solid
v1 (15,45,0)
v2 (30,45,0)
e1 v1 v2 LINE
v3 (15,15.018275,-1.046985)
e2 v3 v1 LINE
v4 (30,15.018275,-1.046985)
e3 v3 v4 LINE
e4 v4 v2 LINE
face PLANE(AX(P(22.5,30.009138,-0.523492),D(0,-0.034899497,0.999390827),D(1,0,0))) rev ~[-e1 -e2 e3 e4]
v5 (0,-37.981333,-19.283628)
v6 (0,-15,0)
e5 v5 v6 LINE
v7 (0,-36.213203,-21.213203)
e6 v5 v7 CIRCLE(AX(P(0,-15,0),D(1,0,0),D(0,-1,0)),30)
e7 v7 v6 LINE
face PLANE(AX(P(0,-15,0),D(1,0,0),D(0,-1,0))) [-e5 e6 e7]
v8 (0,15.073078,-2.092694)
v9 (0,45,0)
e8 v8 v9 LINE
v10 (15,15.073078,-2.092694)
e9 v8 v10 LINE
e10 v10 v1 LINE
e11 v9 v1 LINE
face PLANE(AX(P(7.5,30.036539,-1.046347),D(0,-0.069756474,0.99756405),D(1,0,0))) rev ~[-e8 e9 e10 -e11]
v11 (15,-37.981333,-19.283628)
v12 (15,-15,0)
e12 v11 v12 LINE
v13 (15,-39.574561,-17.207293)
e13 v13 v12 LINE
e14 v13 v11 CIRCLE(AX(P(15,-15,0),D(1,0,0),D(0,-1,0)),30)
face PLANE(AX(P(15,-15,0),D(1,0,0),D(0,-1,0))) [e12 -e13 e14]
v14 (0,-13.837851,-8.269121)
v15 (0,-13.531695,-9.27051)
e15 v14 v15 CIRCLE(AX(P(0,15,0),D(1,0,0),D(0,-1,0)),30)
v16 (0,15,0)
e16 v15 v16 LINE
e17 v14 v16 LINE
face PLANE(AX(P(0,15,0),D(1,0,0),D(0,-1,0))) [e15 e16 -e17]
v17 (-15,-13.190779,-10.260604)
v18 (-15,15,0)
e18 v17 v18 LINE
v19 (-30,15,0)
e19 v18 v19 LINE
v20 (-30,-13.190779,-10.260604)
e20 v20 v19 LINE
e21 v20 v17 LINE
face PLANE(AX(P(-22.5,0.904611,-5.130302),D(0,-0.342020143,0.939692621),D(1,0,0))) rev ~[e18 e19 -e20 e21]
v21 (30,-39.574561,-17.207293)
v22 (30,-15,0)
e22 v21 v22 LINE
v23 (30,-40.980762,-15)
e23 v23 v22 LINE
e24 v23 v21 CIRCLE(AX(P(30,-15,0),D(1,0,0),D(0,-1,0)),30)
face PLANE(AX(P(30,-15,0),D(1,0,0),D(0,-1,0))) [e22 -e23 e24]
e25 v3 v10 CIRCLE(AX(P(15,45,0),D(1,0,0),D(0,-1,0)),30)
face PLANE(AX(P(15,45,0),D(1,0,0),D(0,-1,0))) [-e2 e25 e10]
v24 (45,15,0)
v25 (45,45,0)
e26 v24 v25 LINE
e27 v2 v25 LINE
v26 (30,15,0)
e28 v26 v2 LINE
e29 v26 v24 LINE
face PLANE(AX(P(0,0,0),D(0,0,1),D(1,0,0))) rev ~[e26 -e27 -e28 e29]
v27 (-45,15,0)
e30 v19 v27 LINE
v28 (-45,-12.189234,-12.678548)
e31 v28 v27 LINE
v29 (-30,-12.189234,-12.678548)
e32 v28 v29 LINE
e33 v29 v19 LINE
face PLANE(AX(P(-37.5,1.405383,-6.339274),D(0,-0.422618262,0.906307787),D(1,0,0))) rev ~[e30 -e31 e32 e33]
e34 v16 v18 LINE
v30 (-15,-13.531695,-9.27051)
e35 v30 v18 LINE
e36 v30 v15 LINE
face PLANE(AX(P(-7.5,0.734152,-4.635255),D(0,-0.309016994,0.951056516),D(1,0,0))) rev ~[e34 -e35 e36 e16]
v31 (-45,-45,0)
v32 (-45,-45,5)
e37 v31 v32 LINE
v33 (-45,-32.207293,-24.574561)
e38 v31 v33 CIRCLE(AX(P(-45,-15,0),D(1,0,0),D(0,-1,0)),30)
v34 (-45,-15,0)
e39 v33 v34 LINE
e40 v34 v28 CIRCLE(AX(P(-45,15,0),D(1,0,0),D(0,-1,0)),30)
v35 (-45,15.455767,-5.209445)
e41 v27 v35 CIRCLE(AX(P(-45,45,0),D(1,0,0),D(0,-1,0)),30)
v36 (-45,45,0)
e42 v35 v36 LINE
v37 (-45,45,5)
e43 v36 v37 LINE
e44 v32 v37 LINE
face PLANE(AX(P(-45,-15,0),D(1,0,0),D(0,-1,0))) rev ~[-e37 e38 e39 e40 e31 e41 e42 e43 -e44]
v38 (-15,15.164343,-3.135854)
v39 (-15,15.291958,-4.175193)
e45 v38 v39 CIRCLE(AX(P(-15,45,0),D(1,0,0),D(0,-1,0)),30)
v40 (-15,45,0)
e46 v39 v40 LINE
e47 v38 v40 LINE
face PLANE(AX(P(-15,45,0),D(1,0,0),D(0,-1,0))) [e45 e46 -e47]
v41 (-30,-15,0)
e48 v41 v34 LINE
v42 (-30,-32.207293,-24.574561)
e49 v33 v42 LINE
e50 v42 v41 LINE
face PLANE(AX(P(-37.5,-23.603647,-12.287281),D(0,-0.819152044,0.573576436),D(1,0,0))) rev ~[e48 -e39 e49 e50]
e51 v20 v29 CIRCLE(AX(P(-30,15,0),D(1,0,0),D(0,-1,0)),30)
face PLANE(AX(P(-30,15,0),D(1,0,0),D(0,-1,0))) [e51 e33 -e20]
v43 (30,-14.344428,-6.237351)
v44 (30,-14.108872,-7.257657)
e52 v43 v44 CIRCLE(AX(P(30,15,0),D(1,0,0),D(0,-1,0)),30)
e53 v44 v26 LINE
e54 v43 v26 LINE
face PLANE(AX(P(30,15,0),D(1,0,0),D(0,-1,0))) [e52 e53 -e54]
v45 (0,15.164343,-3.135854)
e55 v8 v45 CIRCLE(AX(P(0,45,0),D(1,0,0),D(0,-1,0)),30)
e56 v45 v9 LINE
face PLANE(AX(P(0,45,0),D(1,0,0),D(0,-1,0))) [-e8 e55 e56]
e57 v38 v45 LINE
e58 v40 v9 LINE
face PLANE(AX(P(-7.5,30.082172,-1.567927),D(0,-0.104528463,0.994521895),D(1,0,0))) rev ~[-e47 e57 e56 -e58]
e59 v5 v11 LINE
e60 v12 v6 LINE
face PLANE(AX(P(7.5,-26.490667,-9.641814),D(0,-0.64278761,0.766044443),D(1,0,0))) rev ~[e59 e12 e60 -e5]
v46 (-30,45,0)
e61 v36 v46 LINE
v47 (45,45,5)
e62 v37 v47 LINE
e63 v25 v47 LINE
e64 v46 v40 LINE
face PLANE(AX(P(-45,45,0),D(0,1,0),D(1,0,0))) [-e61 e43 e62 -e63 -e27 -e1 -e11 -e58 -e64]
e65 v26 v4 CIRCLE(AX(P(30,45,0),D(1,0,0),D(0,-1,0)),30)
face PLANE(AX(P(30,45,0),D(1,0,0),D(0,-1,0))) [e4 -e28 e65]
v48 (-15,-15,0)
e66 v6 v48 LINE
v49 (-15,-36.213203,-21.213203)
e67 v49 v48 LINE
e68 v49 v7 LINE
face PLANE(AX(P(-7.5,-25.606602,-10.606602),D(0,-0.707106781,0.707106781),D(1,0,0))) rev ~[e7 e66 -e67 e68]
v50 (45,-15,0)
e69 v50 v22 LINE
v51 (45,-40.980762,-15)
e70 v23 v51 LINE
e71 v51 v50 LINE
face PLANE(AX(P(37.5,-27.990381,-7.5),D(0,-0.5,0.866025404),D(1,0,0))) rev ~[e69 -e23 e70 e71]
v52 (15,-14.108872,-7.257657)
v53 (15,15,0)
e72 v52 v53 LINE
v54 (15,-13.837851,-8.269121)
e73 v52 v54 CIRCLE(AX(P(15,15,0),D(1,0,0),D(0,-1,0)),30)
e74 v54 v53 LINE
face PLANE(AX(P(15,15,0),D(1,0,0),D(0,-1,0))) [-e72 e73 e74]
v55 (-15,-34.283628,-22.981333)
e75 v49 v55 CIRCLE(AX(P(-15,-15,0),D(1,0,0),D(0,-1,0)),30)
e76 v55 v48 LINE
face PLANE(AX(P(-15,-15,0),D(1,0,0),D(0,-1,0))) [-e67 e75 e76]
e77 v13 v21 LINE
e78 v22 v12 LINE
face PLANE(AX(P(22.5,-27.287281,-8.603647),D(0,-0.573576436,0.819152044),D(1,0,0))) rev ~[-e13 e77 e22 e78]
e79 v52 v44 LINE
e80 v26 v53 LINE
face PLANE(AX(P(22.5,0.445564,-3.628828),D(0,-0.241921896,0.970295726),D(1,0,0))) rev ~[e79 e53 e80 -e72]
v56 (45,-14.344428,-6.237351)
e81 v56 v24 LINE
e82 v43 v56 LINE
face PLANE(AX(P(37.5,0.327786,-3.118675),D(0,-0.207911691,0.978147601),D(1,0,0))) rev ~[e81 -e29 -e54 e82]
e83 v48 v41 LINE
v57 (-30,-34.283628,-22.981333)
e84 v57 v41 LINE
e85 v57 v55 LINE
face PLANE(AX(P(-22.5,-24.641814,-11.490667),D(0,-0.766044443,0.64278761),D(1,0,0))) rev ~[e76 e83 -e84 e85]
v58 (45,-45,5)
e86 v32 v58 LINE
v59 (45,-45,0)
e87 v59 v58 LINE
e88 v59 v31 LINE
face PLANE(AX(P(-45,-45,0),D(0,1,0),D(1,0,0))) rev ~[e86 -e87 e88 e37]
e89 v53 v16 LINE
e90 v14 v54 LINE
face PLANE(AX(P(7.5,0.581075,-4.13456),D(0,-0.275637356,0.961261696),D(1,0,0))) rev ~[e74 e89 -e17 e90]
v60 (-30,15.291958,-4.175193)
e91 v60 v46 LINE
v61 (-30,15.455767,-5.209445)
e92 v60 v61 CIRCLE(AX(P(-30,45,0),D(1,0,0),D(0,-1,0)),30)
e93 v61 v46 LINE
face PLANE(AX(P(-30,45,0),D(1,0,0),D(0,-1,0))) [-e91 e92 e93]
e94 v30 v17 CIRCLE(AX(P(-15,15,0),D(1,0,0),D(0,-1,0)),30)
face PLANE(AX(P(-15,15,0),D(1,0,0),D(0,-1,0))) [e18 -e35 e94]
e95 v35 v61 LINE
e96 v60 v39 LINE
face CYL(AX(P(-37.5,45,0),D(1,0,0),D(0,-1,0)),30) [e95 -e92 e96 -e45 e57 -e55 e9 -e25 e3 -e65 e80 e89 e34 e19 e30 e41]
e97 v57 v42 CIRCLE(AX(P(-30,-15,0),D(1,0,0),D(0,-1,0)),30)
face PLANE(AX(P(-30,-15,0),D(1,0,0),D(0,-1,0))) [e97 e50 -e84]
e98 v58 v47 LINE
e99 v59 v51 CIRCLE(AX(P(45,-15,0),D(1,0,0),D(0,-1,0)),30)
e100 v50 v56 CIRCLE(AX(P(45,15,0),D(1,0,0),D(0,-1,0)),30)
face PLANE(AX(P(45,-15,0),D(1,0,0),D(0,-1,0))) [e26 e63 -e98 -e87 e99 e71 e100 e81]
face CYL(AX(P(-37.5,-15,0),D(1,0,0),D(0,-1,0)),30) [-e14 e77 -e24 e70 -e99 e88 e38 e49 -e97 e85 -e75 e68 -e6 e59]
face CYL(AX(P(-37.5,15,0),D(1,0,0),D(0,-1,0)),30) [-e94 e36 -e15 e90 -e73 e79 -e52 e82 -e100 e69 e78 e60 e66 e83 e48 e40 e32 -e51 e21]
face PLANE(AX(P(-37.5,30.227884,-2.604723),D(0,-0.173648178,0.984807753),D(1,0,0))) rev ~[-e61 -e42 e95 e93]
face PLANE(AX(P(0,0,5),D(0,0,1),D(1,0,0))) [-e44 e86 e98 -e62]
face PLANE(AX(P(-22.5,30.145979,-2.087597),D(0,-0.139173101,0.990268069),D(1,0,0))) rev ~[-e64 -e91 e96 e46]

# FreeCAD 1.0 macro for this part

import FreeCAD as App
import Part
import Sketcher
from FreeCAD import Vector
Q = App.Units.Quantity


def add_polygon(sketch, points):
    """Adds a closed chain of lines whose ends are joined by coincident constraints."""
    first, n = sketch.GeometryCount, len(points)
    for a, b in zip(points, points[1:] + points[:1]):
        sketch.addGeometry(Part.LineSegment(App.Vector(*a, 0), App.Vector(*b, 0)), False)
    for i in range(n):
        sketch.addConstraint(Sketcher.Constraint("Coincident", first + i, 2, first + (i + 1) % n, 1))

doc = App.newDocument("Part")
body = doc.addObject("PartDesign::Body", "Body")

# Sketch on XY plane
sketch1 = body.newObject("Sketcher::SketchObject", "Sketch")
sketch1.AttachmentSupport = (doc.getObject("XY_Plane"), [""])
sketch1.MapMode = "FlatFace"
add_polygon(sketch1, [(-45, 45), (-45, -45), (45, -45), (45, 45)])  # lines 0-3
sketch1.addConstraint(Sketcher.Constraint("Vertical", 0))
sketch1.addConstraint(Sketcher.Constraint("Horizontal", 1))
sketch1.addConstraint(Sketcher.Constraint("Vertical", 2))
sketch1.addConstraint(Sketcher.Constraint("Horizontal", 3))
sketch1.addConstraint(Sketcher.Constraint("Symmetric", 0, 2, 2, 2, -1, 1))
sketch1.addConstraint(Sketcher.Constraint("Equal", 3, 0))
sketch1.addConstraint(Sketcher.Constraint("DistanceX", 1, 1, 1, 2, Q("90 mm")))
pad1 = body.newObject("PartDesign::Pad", "Pad")
pad1.Profile = sketch1
pad1.Length = 5

# Sketch on XY plane
sketch2 = body.newObject("Sketcher::SketchObject", "Sketch001")
sketch2.AttachmentSupport = (doc.getObject("XY_Plane"), [""])
sketch2.MapMode = "FlatFace"
add_polygon(sketch2, [(15, 45), (15, 15), (30, 15), (30, 45)])  # lines 0-3
sketch2.addGeometry(Part.LineSegment(Vector(15, 45, 0), Vector(30, 45, 0)), True)  # axis
sketch2.addConstraint(Sketcher.Constraint("Vertical", 0))
sketch2.addConstraint(Sketcher.Constraint("Horizontal", 1))
sketch2.addConstraint(Sketcher.Constraint("Vertical", 2))
sketch2.addConstraint(Sketcher.Constraint("Horizontal", 3))
sketch2.addConstraint(Sketcher.Constraint("Horizontal", 4))
sketch2.addConstraint(Sketcher.Constraint("Coincident", 4, 1, 3, 2))
sketch2.addConstraint(Sketcher.Constraint("Vertical", 1, 2, 4, 2))
sketch2.addConstraint(Sketcher.Constraint("DistanceX", 1, 1, 1, 2, Q("15 mm")))
sketch2.addConstraint(Sketcher.Constraint("DistanceY", 0, 2, 0, 1, Q("30 mm")))
sketch2.addConstraint(Sketcher.Constraint("DistanceX", -1, 1, 0, 2, Q("15 mm")))
sketch2.addConstraint(Sketcher.Constraint("DistanceY", -1, 1, 0, 2, Q("15 mm")))
revolution = body.newObject("PartDesign::Revolution", "Revolution")
revolution.Profile = sketch2
revolution.ReferenceAxis = (sketch2, ["Axis0"])
revolution.Angle = 2

# Sketch on XY plane
sketch3 = body.newObject("Sketcher::SketchObject", "Sketch002")
sketch3.AttachmentSupport = (doc.getObject("XY_Plane"), [""])
sketch3.MapMode = "FlatFace"
add_polygon(sketch3, [(0, 45), (0, 15), (15, 15), (15, 45)])  # lines 0-3
sketch3.addGeometry(Part.LineSegment(Vector(15, 45, 0), Vector(0, 45, 0)), True)  # axis
sketch3.addConstraint(Sketcher.Constraint("Vertical", 0))
sketch3.addConstraint(Sketcher.Constraint("Horizontal", 1))
sketch3.addConstraint(Sketcher.Constraint("Vertical", 2))
sketch3.addConstraint(Sketcher.Constraint("Horizontal", 3))
sketch3.addConstraint(Sketcher.Constraint("Horizontal", 4))
sketch3.addConstraint(Sketcher.Constraint("Coincident", 4, 1, 2, 2))
sketch3.addConstraint(Sketcher.Constraint("PointOnObject", 0, 2, -2))
sketch3.addConstraint(Sketcher.Constraint("PointOnObject", 4, 2, -2))
sketch3.addConstraint(Sketcher.Constraint("DistanceX", 1, 1, 1, 2, Q("15 mm")))
sketch3.addConstraint(Sketcher.Constraint("DistanceY", 0, 2, 0, 1, Q("30 mm")))
sketch3.addConstraint(Sketcher.Constraint("DistanceY", -1, 1, 0, 2, Q("15 mm")))
revolution2 = body.newObject("PartDesign::Revolution", "Revolution001")
revolution2.Profile = sketch3
revolution2.ReferenceAxis = (sketch3, ["Axis0"])
revolution2.Angle = 4
revolution2.Reversed = True

# Sketch on XY plane
sketch4 = body.newObject("Sketcher::SketchObject", "Sketch003")
sketch4.AttachmentSupport = (doc.getObject("XY_Plane"), [""])
sketch4.MapMode = "FlatFace"
add_polygon(sketch4, [(-15, 45), (-15, 15), (0, 15), (0, 45)])  # lines 0-3
sketch4.addGeometry(Part.LineSegment(Vector(0, 45, 0), Vector(-15, 45, 0)), True)  # axis
sketch4.addConstraint(Sketcher.Constraint("Vertical", 0))
sketch4.addConstraint(Sketcher.Constraint("Horizontal", 1))
sketch4.addConstraint(Sketcher.Constraint("Vertical", 2))
sketch4.addConstraint(Sketcher.Constraint("Horizontal", 3))
sketch4.addConstraint(Sketcher.Constraint("Horizontal", 4))
sketch4.addConstraint(Sketcher.Constraint("Coincident", 4, 1, 2, 2))
sketch4.addConstraint(Sketcher.Constraint("PointOnObject", 1, 2, -2))
sketch4.addConstraint(Sketcher.Constraint("Vertical", 0, 2, 4, 2))
sketch4.addConstraint(Sketcher.Constraint("DistanceX", 1, 1, 1, 2, Q("15 mm")))
sketch4.addConstraint(Sketcher.Constraint("DistanceY", 0, 2, 0, 1, Q("30 mm")))
sketch4.addConstraint(Sketcher.Constraint("DistanceY", -1, 1, 0, 2, Q("15 mm")))
revolution3 = body.newObject("PartDesign::Revolution", "Revolution002")
revolution3.Profile = sketch4
revolution3.ReferenceAxis = (sketch4, ["Axis0"])
revolution3.Angle = 6
revolution3.Reversed = True

# Sketch on XY plane
sketch5 = body.newObject("Sketcher::SketchObject", "Sketch004")
sketch5.AttachmentSupport = (doc.getObject("XY_Plane"), [""])
sketch5.MapMode = "FlatFace"
add_polygon(sketch5, [(-30, 45), (-30, 15), (-15, 15), (-15, 45)])  # lines 0-3
sketch5.addGeometry(Part.LineSegment(Vector(-15, 45, 0), Vector(-30, 45, 0)), True)  # axis
sketch5.addConstraint(Sketcher.Constraint("Vertical", 0))
sketch5.addConstraint(Sketcher.Constraint("Horizontal", 1))
sketch5.addConstraint(Sketcher.Constraint("Vertical", 2))
sketch5.addConstraint(Sketcher.Constraint("Horizontal", 3))
sketch5.addConstraint(Sketcher.Constraint("Horizontal", 4))
sketch5.addConstraint(Sketcher.Constraint("Coincident", 4, 1, 2, 2))
sketch5.addConstraint(Sketcher.Constraint("Vertical", 0, 2, 4, 2))
sketch5.addConstraint(Sketcher.Constraint("DistanceX", 1, 1, 1, 2, Q("15 mm")))
sketch5.addConstraint(Sketcher.Constraint("DistanceY", 0, 2, 0, 1, Q("30 mm")))
sketch5.addConstraint(Sketcher.Constraint("DistanceX", 0, 2, -1, 1, Q("30 mm")))
sketch5.addConstraint(Sketcher.Constraint("DistanceY", -1, 1, 0, 2, Q("15 mm")))
revolution4 = body.newObject("PartDesign::Revolution", "Revolution003")
revolution4.Profile = sketch5
revolution4.ReferenceAxis = (sketch5, ["Axis0"])
revolution4.Angle = 8
revolution4.Reversed = True

# Sketch on XY plane
sketch6 = body.newObject("Sketcher::SketchObject", "Sketch005")
sketch6.AttachmentSupport = (doc.getObject("XY_Plane"), [""])
sketch6.MapMode = "FlatFace"
add_polygon(sketch6, [(-45, 45), (-45, 15), (-30, 15), (-30, 45)])  # lines 0-3
sketch6.addGeometry(Part.LineSegment(Vector(-30, 45, 0), Vector(-45, 45, 0)), True)  # axis
sketch6.addConstraint(Sketcher.Constraint("Vertical", 0))
sketch6.addConstraint(Sketcher.Constraint("Horizontal", 1))
sketch6.addConstraint(Sketcher.Constraint("Vertical", 2))
sketch6.addConstraint(Sketcher.Constraint("Horizontal", 3))
sketch6.addConstraint(Sketcher.Constraint("Horizontal", 4))
sketch6.addConstraint(Sketcher.Constraint("Coincident", 4, 1, 2, 2))
sketch6.addConstraint(Sketcher.Constraint("Vertical", 0, 2, 4, 2))
sketch6.addConstraint(Sketcher.Constraint("DistanceX", 1, 1, 1, 2, Q("15 mm")))
sketch6.addConstraint(Sketcher.Constraint("DistanceY", 0, 2, 0, 1, Q("30 mm")))
sketch6.addConstraint(Sketcher.Constraint("DistanceX", 0, 2, -1, 1, Q("45 mm")))
sketch6.addConstraint(Sketcher.Constraint("DistanceY", -1, 1, 0, 2, Q("15 mm")))
revolution5 = body.newObject("PartDesign::Revolution", "Revolution004")
revolution5.Profile = sketch6
revolution5.ReferenceAxis = (sketch6, ["Axis0"])
revolution5.Angle = 10
revolution5.Reversed = True

# Sketch on XY plane
sketch7 = body.newObject("Sketcher::SketchObject", "Sketch006")
sketch7.AttachmentSupport = (doc.getObject("XY_Plane"), [""])
sketch7.MapMode = "FlatFace"
add_polygon(sketch7, [(30, 15), (30, -15), (45, -15), (45, 15)])  # lines 0-3
sketch7.addGeometry(Part.LineSegment(Vector(45, 15, 0), Vector(30, 15, 0)), True)  # axis
sketch7.addConstraint(Sketcher.Constraint("Vertical", 0))
sketch7.addConstraint(Sketcher.Constraint("Horizontal", 1))
sketch7.addConstraint(Sketcher.Constraint("Vertical", 2))
sketch7.addConstraint(Sketcher.Constraint("Horizontal", 3))
sketch7.addConstraint(Sketcher.Constraint("Horizontal", 4))
sketch7.addConstraint(Sketcher.Constraint("Coincident", 4, 1, 2, 2))
sketch7.addConstraint(Sketcher.Constraint("Symmetric", 0, 2, 4, 2, -1))
sketch7.addConstraint(Sketcher.Constraint("DistanceX", 1, 1, 1, 2, Q("15 mm")))
sketch7.addConstraint(Sketcher.Constraint("DistanceY", 0, 2, 0, 1, Q("30 mm")))
sketch7.addConstraint(Sketcher.Constraint("DistanceX", -1, 1, 0, 2, Q("30 mm")))
revolution6 = body.newObject("PartDesign::Revolution", "Revolution005")
revolution6.Profile = sketch7
revolution6.ReferenceAxis = (sketch7, ["Axis0"])
revolution6.Angle = 12
revolution6.Reversed = True

# Sketch on XY plane
sketch8 = body.newObject("Sketcher::SketchObject", "Sketch007")
sketch8.AttachmentSupport = (doc.getObject("XY_Plane"), [""])
sketch8.MapMode = "FlatFace"
add_polygon(sketch8, [(15, 15), (15, -15), (30, -15), (30, 15)])  # lines 0-3
sketch8.addGeometry(Part.LineSegment(Vector(30, 15, 0), Vector(15, 15, 0)), True)  # axis
sketch8.addConstraint(Sketcher.Constraint("Vertical", 0))
sketch8.addConstraint(Sketcher.Constraint("Horizontal", 1))
sketch8.addConstraint(Sketcher.Constraint("Vertical", 2))
sketch8.addConstraint(Sketcher.Constraint("Horizontal", 3))
sketch8.addConstraint(Sketcher.Constraint("Horizontal", 4))
sketch8.addConstraint(Sketcher.Constraint("Coincident", 4, 1, 2, 2))
sketch8.addConstraint(Sketcher.Constraint("Symmetric", 0, 2, 4, 2, -1))
sketch8.addConstraint(Sketcher.Constraint("DistanceX", 1, 1, 1, 2, Q("15 mm")))
sketch8.addConstraint(Sketcher.Constraint("DistanceY", 0, 2, 0, 1, Q("30 mm")))
sketch8.addConstraint(Sketcher.Constraint("DistanceX", -1, 1, 0, 2, Q("15 mm")))
revolution7 = body.newObject("PartDesign::Revolution", "Revolution006")
revolution7.Profile = sketch8
revolution7.ReferenceAxis = (sketch8, ["Axis0"])
revolution7.Angle = 14
revolution7.Reversed = True

# Sketch on XY plane
sketch9 = body.newObject("Sketcher::SketchObject", "Sketch008")
sketch9.AttachmentSupport = (doc.getObject("XY_Plane"), [""])
sketch9.MapMode = "FlatFace"
add_polygon(sketch9, [(0, 15), (0, -15), (15, -15), (15, 15)])  # lines 0-3
sketch9.addGeometry(Part.LineSegment(Vector(15, 15, 0), Vector(0, 15, 0)), True)  # axis
sketch9.addConstraint(Sketcher.Constraint("Vertical", 0))
sketch9.addConstraint(Sketcher.Constraint("Horizontal", 1))
sketch9.addConstraint(Sketcher.Constraint("Vertical", 2))
sketch9.addConstraint(Sketcher.Constraint("Horizontal", 3))
sketch9.addConstraint(Sketcher.Constraint("Horizontal", 4))
sketch9.addConstraint(Sketcher.Constraint("Coincident", 4, 1, 2, 2))
sketch9.addConstraint(Sketcher.Constraint("Symmetric", 0, 2, 3, 2, -1, 1))
sketch9.addConstraint(Sketcher.Constraint("PointOnObject", 4, 2, -2))
sketch9.addConstraint(Sketcher.Constraint("DistanceX", 1, 1, 1, 2, Q("15 mm")))
sketch9.addConstraint(Sketcher.Constraint("DistanceY", 0, 2, 0, 1, Q("30 mm")))
revolution8 = body.newObject("PartDesign::Revolution", "Revolution007")
revolution8.Profile = sketch9
revolution8.ReferenceAxis = (sketch9, ["Axis0"])
revolution8.Angle = 16
revolution8.Reversed = True

# Sketch on XY plane
sketch10 = body.newObject("Sketcher::SketchObject", "Sketch009")
sketch10.AttachmentSupport = (doc.getObject("XY_Plane"), [""])
sketch10.MapMode = "FlatFace"
add_polygon(sketch10, [(-15, 15), (-15, -15), (0, -15), (0, 15)])  # lines 0-3
sketch10.addGeometry(Part.LineSegment(Vector(0, 15, 0), Vector(-15, 15, 0)), True)  # axis
sketch10.addConstraint(Sketcher.Constraint("Vertical", 0))
sketch10.addConstraint(Sketcher.Constraint("Horizontal", 1))
sketch10.addConstraint(Sketcher.Constraint("Vertical", 2))
sketch10.addConstraint(Sketcher.Constraint("Horizontal", 3))
sketch10.addConstraint(Sketcher.Constraint("Horizontal", 4))
sketch10.addConstraint(Sketcher.Constraint("Coincident", 4, 1, 2, 2))
sketch10.addConstraint(Sketcher.Constraint("Symmetric", 1, 2, 2, 2, -1, 1))
sketch10.addConstraint(Sketcher.Constraint("Vertical", 0, 2, 4, 2))
sketch10.addConstraint(Sketcher.Constraint("DistanceX", 1, 1, 1, 2, Q("15 mm")))
sketch10.addConstraint(Sketcher.Constraint("DistanceY", 0, 2, 0, 1, Q("30 mm")))
revolution9 = body.newObject("PartDesign::Revolution", "Revolution008")
revolution9.Profile = sketch10
revolution9.ReferenceAxis = (sketch10, ["Axis0"])
revolution9.Angle = 18
revolution9.Reversed = True

# Sketch on XY plane
sketch11 = body.newObject("Sketcher::SketchObject", "Sketch010")
sketch11.AttachmentSupport = (doc.getObject("XY_Plane"), [""])
sketch11.MapMode = "FlatFace"
add_polygon(sketch11, [(-30, 15), (-30, -15), (-15, -15), (-15, 15)])  # lines 0-3
sketch11.addGeometry(Part.LineSegment(Vector(-15, 15, 0), Vector(-30, 15, 0)), True)  # axis
sketch11.addConstraint(Sketcher.Constraint("Vertical", 0))
sketch11.addConstraint(Sketcher.Constraint("Horizontal", 1))
sketch11.addConstraint(Sketcher.Constraint("Vertical", 2))
sketch11.addConstraint(Sketcher.Constraint("Horizontal", 3))
sketch11.addConstraint(Sketcher.Constraint("Horizontal", 4))
sketch11.addConstraint(Sketcher.Constraint("Coincident", 4, 1, 2, 2))
sketch11.addConstraint(Sketcher.Constraint("Symmetric", 0, 2, 4, 2, -1))
sketch11.addConstraint(Sketcher.Constraint("DistanceX", 1, 1, 1, 2, Q("15 mm")))
sketch11.addConstraint(Sketcher.Constraint("DistanceY", 0, 2, 0, 1, Q("30 mm")))
sketch11.addConstraint(Sketcher.Constraint("DistanceX", 0, 2, -1, 1, Q("30 mm")))
revolution10 = body.newObject("PartDesign::Revolution", "Revolution009")
revolution10.Profile = sketch11
revolution10.ReferenceAxis = (sketch11, ["Axis0"])
revolution10.Angle = 20
revolution10.Reversed = True

# Sketch on XY plane
sketch12 = body.newObject("Sketcher::SketchObject", "Sketch011")
sketch12.AttachmentSupport = (doc.getObject("XY_Plane"), [""])
sketch12.MapMode = "FlatFace"
add_polygon(sketch12, [(-45, 15), (-45, -15), (-30, -15), (-30, 15)])  # lines 0-3
sketch12.addGeometry(Part.LineSegment(Vector(-30, 15, 0), Vector(-45, 15, 0)), True)  # axis
sketch12.addConstraint(Sketcher.Constraint("Vertical", 0))
sketch12.addConstraint(Sketcher.Constraint("Horizontal", 1))
sketch12.addConstraint(Sketcher.Constraint("Vertical", 2))
sketch12.addConstraint(Sketcher.Constraint("Horizontal", 3))
sketch12.addConstraint(Sketcher.Constraint("Horizontal", 4))
sketch12.addConstraint(Sketcher.Constraint("Coincident", 4, 1, 2, 2))
sketch12.addConstraint(Sketcher.Constraint("Symmetric", 0, 2, 4, 2, -1))
sketch12.addConstraint(Sketcher.Constraint("DistanceX", 1, 1, 1, 2, Q("15 mm")))
sketch12.addConstraint(Sketcher.Constraint("DistanceY", 0, 2, 0, 1, Q("30 mm")))
sketch12.addConstraint(Sketcher.Constraint("DistanceX", 0, 2, -1, 1, Q("45 mm")))
revolution11 = body.newObject("PartDesign::Revolution", "Revolution010")
revolution11.Profile = sketch12
revolution11.ReferenceAxis = (sketch12, ["Axis0"])
revolution11.Angle = 25
revolution11.Reversed = True

# Sketch on XY plane
sketch13 = body.newObject("Sketcher::SketchObject", "Sketch012")
sketch13.AttachmentSupport = (doc.getObject("XY_Plane"), [""])
sketch13.MapMode = "FlatFace"
add_polygon(sketch13, [(30, -15), (30, -45), (45, -45), (45, -15)])  # lines 0-3
sketch13.addGeometry(Part.LineSegment(Vector(45, -15, 0), Vector(30, -15, 0)), True)  # axis
sketch13.addConstraint(Sketcher.Constraint("Vertical", 0))
sketch13.addConstraint(Sketcher.Constraint("Horizontal", 1))
sketch13.addConstraint(Sketcher.Constraint("Vertical", 2))
sketch13.addConstraint(Sketcher.Constraint("Horizontal", 3))
sketch13.addConstraint(Sketcher.Constraint("Horizontal", 4))
sketch13.addConstraint(Sketcher.Constraint("Coincident", 4, 1, 2, 2))
sketch13.addConstraint(Sketcher.Constraint("Vertical", 0, 2, 4, 2))
sketch13.addConstraint(Sketcher.Constraint("DistanceX", 1, 1, 1, 2, Q("15 mm")))
sketch13.addConstraint(Sketcher.Constraint("DistanceY", 0, 2, 0, 1, Q("30 mm")))
sketch13.addConstraint(Sketcher.Constraint("DistanceX", -1, 1, 0, 2, Q("30 mm")))
sketch13.addConstraint(Sketcher.Constraint("DistanceY", 0, 2, -1, 1, Q("45 mm")))
revolution12 = body.newObject("PartDesign::Revolution", "Revolution011")
revolution12.Profile = sketch13
revolution12.ReferenceAxis = (sketch13, ["Axis0"])
revolution12.Angle = 30
revolution12.Reversed = True

# Sketch on XY plane
sketch14 = body.newObject("Sketcher::SketchObject", "Sketch013")
sketch14.AttachmentSupport = (doc.getObject("XY_Plane"), [""])
sketch14.MapMode = "FlatFace"
add_polygon(sketch14, [(15, -15), (15, -45), (30, -45), (30, -15)])  # lines 0-3
sketch14.addGeometry(Part.LineSegment(Vector(30, -15, 0), Vector(15, -15, 0)), True)  # axis
sketch14.addConstraint(Sketcher.Constraint("Vertical", 0))
sketch14.addConstraint(Sketcher.Constraint("Horizontal", 1))
sketch14.addConstraint(Sketcher.Constraint("Vertical", 2))
sketch14.addConstraint(Sketcher.Constraint("Horizontal", 3))
sketch14.addConstraint(Sketcher.Constraint("Horizontal", 4))
sketch14.addConstraint(Sketcher.Constraint("Coincident", 4, 1, 2, 2))
sketch14.addConstraint(Sketcher.Constraint("Vertical", 0, 2, 4, 2))
sketch14.addConstraint(Sketcher.Constraint("DistanceX", 1, 1, 1, 2, Q("15 mm")))
sketch14.addConstraint(Sketcher.Constraint("DistanceY", 0, 2, 0, 1, Q("30 mm")))
sketch14.addConstraint(Sketcher.Constraint("DistanceX", -1, 1, 0, 2, Q("15 mm")))
sketch14.addConstraint(Sketcher.Constraint("DistanceY", 0, 2, -1, 1, Q("45 mm")))
revolution13 = body.newObject("PartDesign::Revolution", "Revolution012")
revolution13.Profile = sketch14
revolution13.ReferenceAxis = (sketch14, ["Axis0"])
revolution13.Angle = 35
revolution13.Reversed = True

# Sketch on XY plane
sketch15 = body.newObject("Sketcher::SketchObject", "Sketch014")
sketch15.AttachmentSupport = (doc.getObject("XY_Plane"), [""])
sketch15.MapMode = "FlatFace"
add_polygon(sketch15, [(0, -15), (0, -45), (15, -45), (15, -15)])  # lines 0-3
sketch15.addGeometry(Part.LineSegment(Vector(15, -15, 0), Vector(0, -15, 0)), True)  # axis
sketch15.addConstraint(Sketcher.Constraint("Vertical", 0))
sketch15.addConstraint(Sketcher.Constraint("Horizontal", 1))
sketch15.addConstraint(Sketcher.Constraint("Vertical", 2))
sketch15.addConstraint(Sketcher.Constraint("Horizontal", 3))
sketch15.addConstraint(Sketcher.Constraint("Horizontal", 4))
sketch15.addConstraint(Sketcher.Constraint("Coincident", 4, 1, 2, 2))
sketch15.addConstraint(Sketcher.Constraint("PointOnObject", 0, 2, -2))
sketch15.addConstraint(Sketcher.Constraint("PointOnObject", 4, 2, -2))
sketch15.addConstraint(Sketcher.Constraint("DistanceX", 1, 1, 1, 2, Q("15 mm")))
sketch15.addConstraint(Sketcher.Constraint("DistanceY", 0, 2, 0, 1, Q("30 mm")))
sketch15.addConstraint(Sketcher.Constraint("DistanceY", 0, 2, -1, 1, Q("45 mm")))
revolution14 = body.newObject("PartDesign::Revolution", "Revolution013")
revolution14.Profile = sketch15
revolution14.ReferenceAxis = (sketch15, ["Axis0"])
revolution14.Angle = 40
revolution14.Reversed = True

# Sketch on XY plane
sketch16 = body.newObject("Sketcher::SketchObject", "Sketch015")
sketch16.AttachmentSupport = (doc.getObject("XY_Plane"), [""])
sketch16.MapMode = "FlatFace"
add_polygon(sketch16, [(-15, -15), (-15, -45), (0, -45), (0, -15)])  # lines 0-3
sketch16.addGeometry(Part.LineSegment(Vector(0, -15, 0), Vector(-15, -15, 0)), True)  # axis
sketch16.addConstraint(Sketcher.Constraint("Vertical", 0))
sketch16.addConstraint(Sketcher.Constraint("Horizontal", 1))
sketch16.addConstraint(Sketcher.Constraint("Vertical", 2))
sketch16.addConstraint(Sketcher.Constraint("Horizontal", 3))
sketch16.addConstraint(Sketcher.Constraint("Horizontal", 4))
sketch16.addConstraint(Sketcher.Constraint("Coincident", 4, 1, 2, 2))
sketch16.addConstraint(Sketcher.Constraint("PointOnObject", 1, 2, -2))
sketch16.addConstraint(Sketcher.Constraint("Vertical", 0, 2, 4, 2))
sketch16.addConstraint(Sketcher.Constraint("DistanceX", 1, 1, 1, 2, Q("15 mm")))
sketch16.addConstraint(Sketcher.Constraint("DistanceY", 0, 2, 0, 1, Q("30 mm")))
sketch16.addConstraint(Sketcher.Constraint("DistanceY", 0, 2, -1, 1, Q("45 mm")))
revolution15 = body.newObject("PartDesign::Revolution", "Revolution014")
revolution15.Profile = sketch16
revolution15.ReferenceAxis = (sketch16, ["Axis0"])
revolution15.Angle = 45
revolution15.Reversed = True

# Sketch on XY plane
sketch17 = body.newObject("Sketcher::SketchObject", "Sketch016")
sketch17.AttachmentSupport = (doc.getObject("XY_Plane"), [""])
sketch17.MapMode = "FlatFace"
add_polygon(sketch17, [(-30, -15), (-30, -45), (-15, -45), (-15, -15)])  # lines 0-3
sketch17.addGeometry(Part.LineSegment(Vector(-15, -15, 0), Vector(-30, -15, 0)), True)  # axis
sketch17.addConstraint(Sketcher.Constraint("Vertical", 0))
sketch17.addConstraint(Sketcher.Constraint("Horizontal", 1))
sketch17.addConstraint(Sketcher.Constraint("Vertical", 2))
sketch17.addConstraint(Sketcher.Constraint("Horizontal", 3))
sketch17.addConstraint(Sketcher.Constraint("Horizontal", 4))
sketch17.addConstraint(Sketcher.Constraint("Coincident", 4, 1, 2, 2))
sketch17.addConstraint(Sketcher.Constraint("Vertical", 0, 2, 4, 2))
sketch17.addConstraint(Sketcher.Constraint("DistanceX", 1, 1, 1, 2, Q("15 mm")))
sketch17.addConstraint(Sketcher.Constraint("DistanceY", 0, 2, 0, 1, Q("30 mm")))
sketch17.addConstraint(Sketcher.Constraint("DistanceX", 0, 2, -1, 1, Q("30 mm")))
sketch17.addConstraint(Sketcher.Constraint("DistanceY", 0, 2, -1, 1, Q("45 mm")))
revolution16 = body.newObject("PartDesign::Revolution", "Revolution015")
revolution16.Profile = sketch17
revolution16.ReferenceAxis = (sketch17, ["Axis0"])
revolution16.Angle = 50
revolution16.Reversed = True

# Sketch on XY plane
sketch18 = body.newObject("Sketcher::SketchObject", "Sketch017")
sketch18.AttachmentSupport = (doc.getObject("XY_Plane"), [""])
sketch18.MapMode = "FlatFace"
add_polygon(sketch18, [(-45, -15), (-45, -45), (-30, -45), (-30, -15)])  # lines 0-3
sketch18.addGeometry(Part.LineSegment(Vector(-30, -15, 0), Vector(-45, -15, 0)), True)  # axis
sketch18.addConstraint(Sketcher.Constraint("Vertical", 0))
sketch18.addConstraint(Sketcher.Constraint("Horizontal", 1))
sketch18.addConstraint(Sketcher.Constraint("Vertical", 2))
sketch18.addConstraint(Sketcher.Constraint("Horizontal", 3))
sketch18.addConstraint(Sketcher.Constraint("Horizontal", 4))
sketch18.addConstraint(Sketcher.Constraint("Coincident", 4, 1, 2, 2))
sketch18.addConstraint(Sketcher.Constraint("Vertical", 0, 2, 4, 2))
sketch18.addConstraint(Sketcher.Constraint("DistanceX", 1, 1, 1, 2, Q("15 mm")))
sketch18.addConstraint(Sketcher.Constraint("DistanceY", 0, 2, 0, 1, Q("30 mm")))
sketch18.addConstraint(Sketcher.Constraint("DistanceX", 0, 2, -1, 1, Q("45 mm")))
sketch18.addConstraint(Sketcher.Constraint("DistanceY", 0, 2, -1, 1, Q("45 mm")))
revolution17 = body.newObject("PartDesign::Revolution", "Revolution016")
revolution17.Profile = sketch18
revolution17.ReferenceAxis = (sketch18, ["Axis0"])
revolution17.Angle = 55
revolution17.Reversed = True

doc.recompute()
